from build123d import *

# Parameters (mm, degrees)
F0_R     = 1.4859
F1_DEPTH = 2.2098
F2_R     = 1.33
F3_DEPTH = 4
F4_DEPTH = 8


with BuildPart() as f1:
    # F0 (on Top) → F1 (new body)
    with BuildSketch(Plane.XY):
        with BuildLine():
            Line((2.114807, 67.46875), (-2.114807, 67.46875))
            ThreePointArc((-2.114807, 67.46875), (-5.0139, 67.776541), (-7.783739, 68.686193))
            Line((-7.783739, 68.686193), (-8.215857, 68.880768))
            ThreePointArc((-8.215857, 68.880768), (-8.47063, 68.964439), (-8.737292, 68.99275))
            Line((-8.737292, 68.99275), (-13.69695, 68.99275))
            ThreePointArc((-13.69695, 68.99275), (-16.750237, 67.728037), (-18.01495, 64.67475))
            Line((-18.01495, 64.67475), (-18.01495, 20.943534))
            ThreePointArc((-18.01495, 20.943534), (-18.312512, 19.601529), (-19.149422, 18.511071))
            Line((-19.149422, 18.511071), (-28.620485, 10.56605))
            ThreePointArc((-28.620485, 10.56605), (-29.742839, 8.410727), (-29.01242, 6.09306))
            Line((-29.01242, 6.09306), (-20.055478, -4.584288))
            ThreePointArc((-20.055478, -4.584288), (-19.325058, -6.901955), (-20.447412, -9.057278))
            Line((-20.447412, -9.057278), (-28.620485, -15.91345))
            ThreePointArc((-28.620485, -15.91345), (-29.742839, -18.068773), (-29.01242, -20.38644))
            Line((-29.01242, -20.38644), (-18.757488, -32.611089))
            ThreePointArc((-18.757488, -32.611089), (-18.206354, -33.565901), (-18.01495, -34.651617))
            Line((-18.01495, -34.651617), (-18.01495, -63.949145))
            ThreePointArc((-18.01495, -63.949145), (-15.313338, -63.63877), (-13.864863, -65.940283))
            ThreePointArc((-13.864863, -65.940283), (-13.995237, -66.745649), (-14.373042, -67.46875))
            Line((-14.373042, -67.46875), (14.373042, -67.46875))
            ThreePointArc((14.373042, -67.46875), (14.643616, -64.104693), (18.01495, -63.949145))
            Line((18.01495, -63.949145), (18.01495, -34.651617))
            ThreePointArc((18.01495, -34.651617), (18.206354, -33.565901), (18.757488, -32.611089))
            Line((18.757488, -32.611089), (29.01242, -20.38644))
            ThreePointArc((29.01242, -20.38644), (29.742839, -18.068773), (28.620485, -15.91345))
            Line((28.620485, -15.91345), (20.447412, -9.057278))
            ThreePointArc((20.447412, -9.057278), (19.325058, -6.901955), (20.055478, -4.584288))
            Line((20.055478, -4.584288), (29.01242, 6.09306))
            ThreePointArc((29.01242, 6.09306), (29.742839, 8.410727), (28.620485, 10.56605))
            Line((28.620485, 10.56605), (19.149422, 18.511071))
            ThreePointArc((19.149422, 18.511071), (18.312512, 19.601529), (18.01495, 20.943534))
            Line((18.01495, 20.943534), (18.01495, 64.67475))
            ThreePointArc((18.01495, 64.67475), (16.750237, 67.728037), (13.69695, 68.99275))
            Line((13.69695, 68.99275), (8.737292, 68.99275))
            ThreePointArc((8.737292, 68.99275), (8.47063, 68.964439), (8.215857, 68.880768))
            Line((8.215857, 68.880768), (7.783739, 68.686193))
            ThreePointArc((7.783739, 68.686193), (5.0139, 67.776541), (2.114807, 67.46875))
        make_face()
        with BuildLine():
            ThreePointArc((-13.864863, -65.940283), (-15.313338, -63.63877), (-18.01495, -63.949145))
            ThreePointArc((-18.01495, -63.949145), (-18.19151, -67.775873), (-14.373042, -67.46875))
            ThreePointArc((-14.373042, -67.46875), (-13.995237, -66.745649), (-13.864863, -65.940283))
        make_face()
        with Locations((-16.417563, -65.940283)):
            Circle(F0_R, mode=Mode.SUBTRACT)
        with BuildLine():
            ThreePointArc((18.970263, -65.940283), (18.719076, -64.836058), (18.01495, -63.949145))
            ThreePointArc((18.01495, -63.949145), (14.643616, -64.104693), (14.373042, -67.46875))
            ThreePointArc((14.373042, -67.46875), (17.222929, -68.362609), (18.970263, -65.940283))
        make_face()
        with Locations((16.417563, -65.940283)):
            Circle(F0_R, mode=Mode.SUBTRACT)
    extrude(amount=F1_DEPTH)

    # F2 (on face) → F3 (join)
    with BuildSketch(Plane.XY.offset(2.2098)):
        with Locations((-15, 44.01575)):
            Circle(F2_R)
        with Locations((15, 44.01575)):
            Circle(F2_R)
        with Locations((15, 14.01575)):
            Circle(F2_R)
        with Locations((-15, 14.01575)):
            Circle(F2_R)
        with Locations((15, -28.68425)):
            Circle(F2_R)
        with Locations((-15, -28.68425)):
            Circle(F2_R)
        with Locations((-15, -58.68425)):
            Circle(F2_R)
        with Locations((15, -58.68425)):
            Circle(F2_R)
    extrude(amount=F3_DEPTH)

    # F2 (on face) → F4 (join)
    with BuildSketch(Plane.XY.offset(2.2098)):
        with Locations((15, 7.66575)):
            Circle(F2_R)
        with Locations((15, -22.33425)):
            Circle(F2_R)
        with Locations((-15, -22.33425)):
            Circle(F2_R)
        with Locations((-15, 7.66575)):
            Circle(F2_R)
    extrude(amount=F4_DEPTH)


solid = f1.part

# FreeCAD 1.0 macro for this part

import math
import FreeCAD as App
import Part
import Sketcher

V = App.Vector
Q = App.Units.Quantity

doc = App.newDocument("Part")
body = doc.addObject("PartDesign::Body", "Body")

sketch1 = body.newObject("Sketcher::SketchObject", "Sketch")
sketch1.AttachmentSupport = (doc.getObject("XY_Plane"), [""])
sketch1.MapMode = "FlatFace"
sketch1.addGeometry(Part.LineSegment(V(2.114807, 67.46875, 0), V(-2.114807, 67.46875, 0)), False)
sketch1.addGeometry(Part.ArcOfCircle(Part.Circle(V(-2.114811, 81.275931, 0), V(0, 0, 1), 13.807181), math.radians(-114.241164), math.radians(-89.999983)), False)
sketch1.addGeometry(Part.LineSegment(V(-7.783739, 68.686193, 0), V(-8.215857, 68.880768, 0)), False)
sketch1.addGeometry(Part.ArcOfCircle(Part.Circle(V(-8.737291, 67.722752, 0), V(0, 0, 1), 1.269998), math.radians(65.758791), math.radians(90.000026)), False)
sketch1.addGeometry(Part.LineSegment(V(-8.737292, 68.99275, 0), V(-13.69695, 68.99275, 0)), False)
sketch1.addGeometry(Part.ArcOfCircle(Part.Circle(V(-13.69695, 64.67475, 0), V(0, 0, 1), 4.318), math.radians(90.000004), math.radians(179.999996)), False)
sketch1.addGeometry(Part.LineSegment(V(-18.01495, 64.67475, 0), V(-18.01495, 20.943534, 0)), False)
sketch1.addGeometry(Part.ArcOfCircle(Part.Circle(V(-21.189952, 20.943534, 0), V(0, 0, 1), 3.175002), math.radians(-50.007584), math.radians(0.000005)), False)
sketch1.addGeometry(Part.LineSegment(V(-19.149422, 18.511071, 0), V(-28.620485, 10.56605, 0)), False)
sketch1.addGeometry(Part.ArcOfCircle(Part.Circle(V(-26.579957, 8.133587, 0), V(0, 0, 1), 3.175), math.radians(129.992389), math.radians(219.99238)), False)
sketch1.addGeometry(Part.LineSegment(V(-29.01242, 6.09306, 0), V(-20.055478, -4.584288, 0)), False)
sketch1.addGeometry(Part.ArcOfCircle(Part.Circle(V(-22.487939, -6.624816, 0), V(0, 0, 1), 3.174999), math.radians(-50.007621), math.radians(39.992416)), False)
sketch1.addGeometry(Part.LineSegment(V(-20.447412, -9.057278, 0), V(-28.620485, -15.91345, 0)), False)
sketch1.addGeometry(Part.ArcOfCircle(Part.Circle(V(-26.579957, -18.345913, 0), V(0, 0, 1), 3.175), math.radians(129.992389), math.radians(219.99238)), False)
sketch1.addGeometry(Part.LineSegment(V(-29.01242, -20.38644, 0), V(-18.757488, -32.611089, 0)), False)
sketch1.addGeometry(Part.ArcOfCircle(Part.Circle(V(-21.189953, -34.651618, 0), V(0, 0, 1), 3.175003), math.radians(0.000015), math.radians(39.992376)), False)
sketch1.addGeometry(Part.LineSegment(V(-18.01495, -34.651617, 0), V(-18.01495, -63.949145, 0)), False)
sketch1.addGeometry(Part.ArcOfCircle(Part.Circle(V(-16.417563, -65.940283, 0), V(0, 0, 1), 2.5527), math.radians(128.738261), math.radians(323.218522)), False)
sketch1.addGeometry(Part.LineSegment(V(-14.373042, -67.46875, 0), V(14.373042, -67.46875, 0)), False)
sketch1.addGeometry(Part.ArcOfCircle(Part.Circle(V(16.417563, -65.940283, 0), V(0, 0, 1), 2.5527), math.radians(-143.218515), math.radians(0.000002)), False)
sketch1.addGeometry(Part.ArcOfCircle(Part.Circle(V(16.41756, -65.940285, 0), V(0, 0, 1), 2.552703), math.radians(0.000038), math.radians(51.261708)), False)
sketch1.addGeometry(Part.LineSegment(V(18.01495, -63.949145, 0), V(18.01495, -34.651617, 0)), False)
sketch1.addGeometry(Part.ArcOfCircle(Part.Circle(V(21.189953, -34.651618, 0), V(0, 0, 1), 3.175003), math.radians(140.007624), math.radians(179.999985)), False)
sketch1.addGeometry(Part.LineSegment(V(18.757488, -32.611089, 0), V(29.01242, -20.38644, 0)), False)
sketch1.addGeometry(Part.ArcOfCircle(Part.Circle(V(26.579957, -18.345913, 0), V(0, 0, 1), 3.175), math.radians(-39.99238), math.radians(50.007611)), False)
sketch1.addGeometry(Part.LineSegment(V(28.620485, -15.91345, 0), V(20.447412, -9.057278, 0)), False)
sketch1.addGeometry(Part.ArcOfCircle(Part.Circle(V(22.487939, -6.624816, 0), V(0, 0, 1), 3.174999), math.radians(140.007584), math.radians(230.007621)), False)
sketch1.addGeometry(Part.LineSegment(V(20.055478, -4.584288, 0), V(29.01242, 6.09306, 0)), False)
sketch1.addGeometry(Part.ArcOfCircle(Part.Circle(V(26.579957, 8.133587, 0), V(0, 0, 1), 3.175), math.radians(-39.99238), math.radians(50.007611)), False)
sketch1.addGeometry(Part.LineSegment(V(28.620485, 10.56605, 0), V(19.149422, 18.511071, 0)), False)
sketch1.addGeometry(Part.ArcOfCircle(Part.Circle(V(21.189952, 20.943534, 0), V(0, 0, 1), 3.175002), math.radians(179.999995), math.radians(230.007584)), False)
sketch1.addGeometry(Part.LineSegment(V(18.01495, 20.943534, 0), V(18.01495, 64.67475, 0)), False)
sketch1.addGeometry(Part.ArcOfCircle(Part.Circle(V(13.69695, 64.67475, 0), V(0, 0, 1), 4.318), math.radians(0.000004), math.radians(89.999996)), False)
sketch1.addGeometry(Part.LineSegment(V(13.69695, 68.99275, 0), V(8.737292, 68.99275, 0)), False)
sketch1.addGeometry(Part.ArcOfCircle(Part.Circle(V(8.737291, 67.722752, 0), V(0, 0, 1), 1.269998), math.radians(89.999974), math.radians(114.241209)), False)
sketch1.addGeometry(Part.LineSegment(V(8.215857, 68.880768, 0), V(7.783739, 68.686193, 0)), False)
sketch1.addGeometry(Part.ArcOfCircle(Part.Circle(V(2.114811, 81.275931, 0), V(0, 0, 1), 13.807181), math.radians(-90.000017), math.radians(-65.758836)), False)
sketch1.addGeometry(Part.Circle(V(-16.417563, -65.940283, 0), V(0, 0, 1), 1.4859), False)
sketch1.addGeometry(Part.Circle(V(16.417563, -65.940283, 0), V(0, 0, 1), 1.4859), False)
sketch1.addConstraint(Sketcher.Constraint("Coincident", 0, 2, 1, 2))
sketch1.addConstraint(Sketcher.Constraint("Coincident", 1, 1, 2, 1))
sketch1.addConstraint(Sketcher.Constraint("Coincident", 2, 2, 3, 1))
sketch1.addConstraint(Sketcher.Constraint("Coincident", 3, 2, 4, 1))
sketch1.addConstraint(Sketcher.Constraint("Coincident", 4, 2, 5, 1))
sketch1.addConstraint(Sketcher.Constraint("Coincident", 5, 2, 6, 1))
sketch1.addConstraint(Sketcher.Constraint("Coincident", 6, 2, 7, 2))
sketch1.addConstraint(Sketcher.Constraint("Coincident", 7, 1, 8, 1))
sketch1.addConstraint(Sketcher.Constraint("Coincident", 8, 2, 9, 1))
sketch1.addConstraint(Sketcher.Constraint("Coincident", 9, 2, 10, 1))
sketch1.addConstraint(Sketcher.Constraint("Coincident", 10, 2, 11, 2))
sketch1.addConstraint(Sketcher.Constraint("Coincident", 11, 1, 12, 1))
sketch1.addConstraint(Sketcher.Constraint("Coincident", 12, 2, 13, 1))
sketch1.addConstraint(Sketcher.Constraint("Coincident", 13, 2, 14, 1))
sketch1.addConstraint(Sketcher.Constraint("Coincident", 14, 2, 15, 2))
sketch1.addConstraint(Sketcher.Constraint("Coincident", 15, 1, 16, 1))
sketch1.addConstraint(Sketcher.Constraint("Coincident", 16, 2, 17, 1))
sketch1.addConstraint(Sketcher.Constraint("Coincident", 17, 2, 18, 1))
sketch1.addConstraint(Sketcher.Constraint("Coincident", 18, 2, 19, 1))
sketch1.addConstraint(Sketcher.Constraint("Coincident", 19, 2, 20, 1))
sketch1.addConstraint(Sketcher.Constraint("Coincident", 20, 2, 21, 1))
sketch1.addConstraint(Sketcher.Constraint("Coincident", 21, 2, 22, 2))
sketch1.addConstraint(Sketcher.Constraint("Coincident", 22, 1, 23, 1))
sketch1.addConstraint(Sketcher.Constraint("Coincident", 23, 2, 24, 1))
sketch1.addConstraint(Sketcher.Constraint("Coincident", 24, 2, 25, 1))
sketch1.addConstraint(Sketcher.Constraint("Coincident", 25, 2, 26, 2))
sketch1.addConstraint(Sketcher.Constraint("Coincident", 26, 1, 27, 1))
sketch1.addConstraint(Sketcher.Constraint("Coincident", 27, 2, 28, 1))
sketch1.addConstraint(Sketcher.Constraint("Coincident", 28, 2, 29, 1))
sketch1.addConstraint(Sketcher.Constraint("Coincident", 29, 2, 30, 2))
sketch1.addConstraint(Sketcher.Constraint("Coincident", 30, 1, 31, 1))
sketch1.addConstraint(Sketcher.Constraint("Coincident", 31, 2, 32, 1))
sketch1.addConstraint(Sketcher.Constraint("Coincident", 32, 2, 33, 1))
sketch1.addConstraint(Sketcher.Constraint("Coincident", 33, 2, 34, 1))
sketch1.addConstraint(Sketcher.Constraint("Coincident", 34, 2, 35, 1))
sketch1.addConstraint(Sketcher.Constraint("Coincident", 35, 2, 36, 2))
sketch1.addConstraint(Sketcher.Constraint("Coincident", 36, 1, 0, 1))
sketch1.addConstraint(Sketcher.Constraint("Horizontal", 0))
sketch1.addConstraint(Sketcher.Constraint("Horizontal", 4))
sketch1.addConstraint(Sketcher.Constraint("Vertical", 6))
sketch1.addConstraint(Sketcher.Constraint("Vertical", 16))
sketch1.addConstraint(Sketcher.Constraint("Horizontal", 18))
sketch1.addConstraint(Sketcher.Constraint("Vertical", 21))
sketch1.addConstraint(Sketcher.Constraint("Vertical", 31))
sketch1.addConstraint(Sketcher.Constraint("Horizontal", 33))
sketch1.addConstraint(Sketcher.Constraint("Coincident", 20, 3, 19, 3))
sketch1.addConstraint(Sketcher.Constraint("Coincident", 37, 3, 17, 3))
sketch1.addConstraint(Sketcher.Constraint("Coincident", 38, 3, 19, 3))
sketch1.addConstraint(Sketcher.Constraint("Radius", 3, Q("0.0499999 in")))
sketch1.addConstraint(Sketcher.Constraint("Radius", 5, Q("0.17 in")))
sketch1.addConstraint(Sketcher.Constraint("Radius", 32, Q("0.17 in")))
sketch1.addConstraint(Sketcher.Constraint("Radius", 34, Q("0.0499999 in")))
sketch1.addConstraint(Sketcher.Constraint("Diameter", 37, Q("0.117 in")))
sketch1.addConstraint(Sketcher.Constraint("Diameter", 38, Q("0.117 in")))
sketch1.addConstraint(Sketcher.Constraint("Radius", 7, Q("0.1250001 in")))
sketch1.addConstraint(Sketcher.Constraint("Radius", 9, Q("0.125 in")))
sketch1.addConstraint(Sketcher.Constraint("Radius", 11, Q("0.125 in")))
sketch1.addConstraint(Sketcher.Constraint("Radius", 13, Q("0.125 in")))
sketch1.addConstraint(Sketcher.Constraint("Radius", 15, Q("0.1250001 in")))
sketch1.addConstraint(Sketcher.Constraint("Radius", 22, Q("0.1250001 in")))
sketch1.addConstraint(Sketcher.Constraint("Radius", 24, Q("0.125 in")))
sketch1.addConstraint(Sketcher.Constraint("Radius", 26, Q("0.125 in")))
sketch1.addConstraint(Sketcher.Constraint("Radius", 28, Q("0.125 in")))
sketch1.addConstraint(Sketcher.Constraint("Radius", 30, Q("0.1250001 in")))
sketch1.addConstraint(Sketcher.Constraint("Radius", 17, Q("0.1005 in")))
sketch1.addConstraint(Sketcher.Constraint("Radius", 19, Q("0.1005 in")))
sketch1.addConstraint(Sketcher.Constraint("Distance", 12, Q("0.42 in")))
sketch1.addConstraint(Sketcher.Constraint("Distance", 25, Q("0.42 in")))
sketch1.addConstraint(Sketcher.Constraint("DistanceY", 32, 3, 3, 3, Q("0.1200001 in")))
sketch1.addConstraint(Sketcher.Constraint("DistanceY", 0, 2, 3, 3, Q("0.0100001 in")))
sketch1.addConstraint(Sketcher.Constraint("DistanceX", 5, 2, 4, 2, Q("0.17 in")))
sketch1.addConstraint(Sketcher.Constraint("DistanceY", 5, 2, 4, 2, Q("0.17 in")))
sketch1.addConstraint(Sketcher.Constraint("DistanceY", 31, 2, 34, 3, Q("0.1200001 in")))
sketch1.addConstraint(Sketcher.Constraint("DistanceX", 32, 2, 31, 2, Q("0.17 in")))
sketch1.addConstraint(Sketcher.Constraint("DistanceY", -1, 1, 0, 2, Q("2.65625 in")))
sketch1.addConstraint(Sketcher.Constraint("DistanceY", 17, 2, -1, 1, Q("2.65625 in")))
sketch1.addConstraint(Sketcher.Constraint("Radius", 1, 13.807181))
sketch1.addConstraint(Sketcher.Constraint("Radius", 36, 13.807181))
sketch1.addConstraint(Sketcher.Constraint("DistanceX", 15, 3, 5, 3, Q("0.2950001 in")))
sketch1.addConstraint(Sketcher.Constraint("DistanceY", 13, 3, 9, 3, Q("1.0425 in")))
sketch1.addConstraint(Sketcher.Constraint("DistanceY", 24, 3, 28, 3, Q("1.0425 in")))
sketch1.addConstraint(Sketcher.Constraint("DistanceX", 7, 3, 30, 3, Q("1.6685002 in")))
sketch1.addConstraint(Sketcher.Constraint("DistanceY", 16, 2, 16, 1, 29.297528))
sketch1.addConstraint(Sketcher.Constraint("DistanceY", 21, 1, 21, 2, 29.297528))
sketch1.addConstraint(Sketcher.Constraint("DistanceY", 15, 3, 11, 3, 28.026802))
sketch1.addConstraint(Sketcher.Constraint("DistanceX", 11, 3, 19, 3, 38.905502))
sketch1.addConstraint(Sketcher.Constraint("DistanceY", 22, 3, 26, 3, 28.026802))
sketch1.addConstraint(Sketcher.Constraint("DistanceX", 0, 2, 34, 3, 10.852098))
sketch1.addConstraint(Sketcher.Constraint("DistanceY", 21, 2, 26, 3, 28.026801))
sketch1.addConstraint(Sketcher.Constraint("DistanceX", 0, 2, 33, 2, 10.852099))
sketch1.addConstraint(Sketcher.Constraint("DistanceX", 0, 2, 0, 1, 4.229614))
sketch1.addConstraint(Sketcher.Constraint("DistanceX", 4, 2, 4, 1, 4.959658))
sketch1.addConstraint(Sketcher.Constraint("DistanceX", 18, 1, 18, 2, 28.746084))
sketch1.addConstraint(Sketcher.Constraint("DistanceX", 33, 2, 33, 1, 4.959658))
sketch1.addConstraint(Sketcher.Constraint("DistanceY", 6, 2, 6, 1, 43.731216))
sketch1.addConstraint(Sketcher.Constraint("DistanceY", 31, 1, 31, 2, 43.731216))
sketch1.addConstraint(Sketcher.Constraint("DistanceX", 1, 3, -1, 1, 2.114811))
sketch1.addConstraint(Sketcher.Constraint("DistanceX", 3, 3, -1, 1, 8.737291))
sketch1.addConstraint(Sketcher.Constraint("DistanceX", 5, 3, -1, 1, 13.69695))
sketch1.addConstraint(Sketcher.Constraint("DistanceX", 11, 3, -1, 1, 22.487939))
sketch1.addConstraint(Sketcher.Constraint("DistanceX", -1, 1, 26, 3, 22.487939))
sketch1.addConstraint(Sketcher.Constraint("DistanceX", -1, 1, 36, 3, 2.114811))
sketch1.addConstraint(Sketcher.Constraint("DistanceX", 1, 1, -1, 1, 7.783739))
sketch1.addConstraint(Sketcher.Constraint("DistanceY", -1, 1, 2, 2, 68.880768))
sketch1.addConstraint(Sketcher.Constraint("DistanceX", 7, 1, -1, 1, 19.149422))
sketch1.addConstraint(Sketcher.Constraint("DistanceY", -1, 1, 7, 1, 18.511071))
sketch1.addConstraint(Sketcher.Constraint("DistanceY", -1, 1, 8, 2, 10.56605))
sketch1.addConstraint(Sketcher.Constraint("DistanceX", 9, 2, -1, 1, 29.01242))
sketch1.addConstraint(Sketcher.Constraint("DistanceY", -1, 1, 9, 2, 6.09306))
sketch1.addConstraint(Sketcher.Constraint("DistanceX", 10, 2, -1, 1, 20.055478))
sketch1.addConstraint(Sketcher.Constraint("DistanceY", 12, 2, -1, 1, 15.91345))
sketch1.addConstraint(Sketcher.Constraint("DistanceX", 13, 2, -1, 1, 29.01242))
sketch1.addConstraint(Sketcher.Constraint("DistanceY", 13, 2, -1, 1, 20.38644))
sketch1.addConstraint(Sketcher.Constraint("DistanceY", 14, 2, -1, 1, 32.611089))
sketch1.addConstraint(Sketcher.Constraint("DistanceX", -1, 1, 20, 2, 18.01495))
sketch1.addConstraint(Sketcher.Constraint("DistanceY", 22, 1, -1, 1, 32.611089))
sketch1.addConstraint(Sketcher.Constraint("DistanceX", -1, 1, 23, 2, 29.01242))
sketch1.addConstraint(Sketcher.Constraint("DistanceY", 23, 2, -1, 1, 20.38644))
sketch1.addConstraint(Sketcher.Constraint("DistanceY", 24, 2, -1, 1, 15.91345))
sketch1.addConstraint(Sketcher.Constraint("DistanceX", -1, 1, 25, 2, 20.447412))
sketch1.addConstraint(Sketcher.Constraint("DistanceX", -1, 1, 27, 2, 29.01242))
sketch1.addConstraint(Sketcher.Constraint("DistanceY", -1, 1, 27, 2, 6.09306))
sketch1.addConstraint(Sketcher.Constraint("DistanceY", -1, 1, 28, 2, 10.56605))
sketch1.addConstraint(Sketcher.Constraint("DistanceY", -1, 1, 29, 2, 18.511071))
sketch1.addConstraint(Sketcher.Constraint("DistanceY", -1, 1, 34, 2, 68.880768))
sketch1.addConstraint(Sketcher.Constraint("DistanceX", -1, 1, 35, 2, 7.783739))
sketch1.addConstraint(Sketcher.Constraint("DistanceX", 9, 3, 11, 3, 4.092019))
sketch1.addConstraint(Sketcher.Constraint("DistanceY", 11, 3, 7, 3, 27.56835))
sketch1.addConstraint(Sketcher.Constraint("DistanceX", 15, 3, 17, 3, 4.77239))
sketch1.addConstraint(Sketcher.Constraint("DistanceY", 17, 3, 13, 3, 47.594371))
sketch1.addConstraint(Sketcher.Constraint("DistanceY", 26, 3, 30, 3, 27.56835))
sketch1.addConstraint(Sketcher.Constraint("DistanceX", 26, 1, 26, 3, 2.432461))
sketch1.addConstraint(Sketcher.Constraint("DistanceY", 19, 2, -1, 1, 65.940283))
pad1 = body.newObject("PartDesign::Pad", "Pad")
pad1.Profile = sketch1
pad1.Length = Q("0.087 in")

sketch2 = body.newObject("Sketcher::SketchObject", "Sketch001")
sketch2.AttachmentSupport = (doc.getObject("XY_Plane"), [""])
sketch2.MapMode = "FlatFace"
sketch2.AttachmentOffset = App.Placement(V(0, 0, 0.087 * 25.4), App.Rotation())
sketch2.addGeometry(Part.Circle(V(-15, 44.01575, 0), V(0, 0, 1), 1.33), False)
sketch2.addGeometry(Part.Circle(V(15, 44.01575, 0), V(0, 0, 1), 1.33), False)
sketch2.addGeometry(Part.Circle(V(15, 14.01575, 0), V(0, 0, 1), 1.33), False)
sketch2.addGeometry(Part.Circle(V(-15, 14.01575, 0), V(0, 0, 1), 1.33), False)
sketch2.addGeometry(Part.Circle(V(15, -28.68425, 0), V(0, 0, 1), 1.33), False)
sketch2.addGeometry(Part.Circle(V(-15, -28.68425, 0), V(0, 0, 1), 1.33), False)
sketch2.addGeometry(Part.Circle(V(-15, -58.68425, 0), V(0, 0, 1), 1.33), False)
sketch2.addGeometry(Part.Circle(V(15, -58.68425, 0), V(0, 0, 1), 1.33), False)
sketch2.addConstraint(Sketcher.Constraint("Equal", 0, 1))
sketch2.addConstraint(Sketcher.Constraint("Equal", 1, 2))
sketch2.addConstraint(Sketcher.Constraint("Equal", 2, 3))
sketch2.addConstraint(Sketcher.Constraint("Equal", 3, 4))
sketch2.addConstraint(Sketcher.Constraint("Equal", 4, 5))
sketch2.addConstraint(Sketcher.Constraint("Equal", 5, 6))
sketch2.addConstraint(Sketcher.Constraint("Equal", 6, 7))
sketch2.addConstraint(Sketcher.Constraint("Symmetric", 0, 3, 1, 3, -2))
sketch2.addConstraint(Sketcher.Constraint("Symmetric", 2, 3, 3, 3, -2))
sketch2.addConstraint(Sketcher.Constraint("Symmetric", 4, 3, 5, 3, -2))
sketch2.addConstraint(Sketcher.Constraint("Symmetric", 6, 3, 7, 3, -2))
sketch2.addConstraint(Sketcher.Constraint("Vertical", 1, 3, 2, 3))
sketch2.addConstraint(Sketcher.Constraint("Vertical", 2, 3, 4, 3))
sketch2.addConstraint(Sketcher.Constraint("Vertical", 5, 3, 6, 3))
sketch2.addConstraint(Sketcher.Constraint("Diameter", 0, 2.66))
sketch2.addConstraint(Sketcher.Constraint("DistanceX", 0, 3, -1, 1, 15.0))
sketch2.addConstraint(Sketcher.Constraint("DistanceY", 2, 3, 1, 3, 30.0))
sketch2.addConstraint(Sketcher.Constraint("DistanceY", 4, 3, 2, 3, 42.7))
sketch2.addConstraint(Sketcher.Constraint("DistanceY", 6, 3, 5, 3, 30.0))
sketch2.addConstraint(Sketcher.Constraint("DistanceY", -1, 1, 0, 3, 44.01575))
pad2 = body.newObject("PartDesign::Pad", "Pad001")
pad2.Profile = sketch2
pad2.Length = 4

sketch3 = body.newObject("Sketcher::SketchObject", "Sketch002")
sketch3.AttachmentSupport = (doc.getObject("XY_Plane"), [""])
sketch3.MapMode = "FlatFace"
sketch3.AttachmentOffset = App.Placement(V(0, 0, 0.087 * 25.4), App.Rotation())
sketch3.addGeometry(Part.Circle(V(15, 7.66575, 0), V(0, 0, 1), 1.33), False)
sketch3.addGeometry(Part.Circle(V(15, -22.33425, 0), V(0, 0, 1), 1.33), False)
sketch3.addGeometry(Part.Circle(V(-15, -22.33425, 0), V(0, 0, 1), 1.33), False)
sketch3.addGeometry(Part.Circle(V(-15, 7.66575, 0), V(0, 0, 1), 1.33), False)
sketch3.addConstraint(Sketcher.Constraint("Equal", 0, 1))
sketch3.addConstraint(Sketcher.Constraint("Equal", 1, 2))
sketch3.addConstraint(Sketcher.Constraint("Equal", 2, 3))
sketch3.addConstraint(Sketcher.Constraint("Symmetric", 1, 3, 2, 3, -2))
sketch3.addConstraint(Sketcher.Constraint("Symmetric", 0, 3, 3, 3, -2))
sketch3.addConstraint(Sketcher.Constraint("Vertical", 0, 3, 1, 3))
sketch3.addConstraint(Sketcher.Constraint("Diameter", 0, 2.66))
sketch3.addConstraint(Sketcher.Constraint("DistanceX", -1, 1, 0, 3, 15.0))
sketch3.addConstraint(Sketcher.Constraint("DistanceY", 1, 3, 0, 3, 30.0))
sketch3.addConstraint(Sketcher.Constraint("DistanceY", -1, 1, 0, 3, 7.66575))
pad3 = body.newObject("PartDesign::Pad", "Pad002")
pad3.Profile = sketch3
pad3.Length = 8

doc.recompute()
